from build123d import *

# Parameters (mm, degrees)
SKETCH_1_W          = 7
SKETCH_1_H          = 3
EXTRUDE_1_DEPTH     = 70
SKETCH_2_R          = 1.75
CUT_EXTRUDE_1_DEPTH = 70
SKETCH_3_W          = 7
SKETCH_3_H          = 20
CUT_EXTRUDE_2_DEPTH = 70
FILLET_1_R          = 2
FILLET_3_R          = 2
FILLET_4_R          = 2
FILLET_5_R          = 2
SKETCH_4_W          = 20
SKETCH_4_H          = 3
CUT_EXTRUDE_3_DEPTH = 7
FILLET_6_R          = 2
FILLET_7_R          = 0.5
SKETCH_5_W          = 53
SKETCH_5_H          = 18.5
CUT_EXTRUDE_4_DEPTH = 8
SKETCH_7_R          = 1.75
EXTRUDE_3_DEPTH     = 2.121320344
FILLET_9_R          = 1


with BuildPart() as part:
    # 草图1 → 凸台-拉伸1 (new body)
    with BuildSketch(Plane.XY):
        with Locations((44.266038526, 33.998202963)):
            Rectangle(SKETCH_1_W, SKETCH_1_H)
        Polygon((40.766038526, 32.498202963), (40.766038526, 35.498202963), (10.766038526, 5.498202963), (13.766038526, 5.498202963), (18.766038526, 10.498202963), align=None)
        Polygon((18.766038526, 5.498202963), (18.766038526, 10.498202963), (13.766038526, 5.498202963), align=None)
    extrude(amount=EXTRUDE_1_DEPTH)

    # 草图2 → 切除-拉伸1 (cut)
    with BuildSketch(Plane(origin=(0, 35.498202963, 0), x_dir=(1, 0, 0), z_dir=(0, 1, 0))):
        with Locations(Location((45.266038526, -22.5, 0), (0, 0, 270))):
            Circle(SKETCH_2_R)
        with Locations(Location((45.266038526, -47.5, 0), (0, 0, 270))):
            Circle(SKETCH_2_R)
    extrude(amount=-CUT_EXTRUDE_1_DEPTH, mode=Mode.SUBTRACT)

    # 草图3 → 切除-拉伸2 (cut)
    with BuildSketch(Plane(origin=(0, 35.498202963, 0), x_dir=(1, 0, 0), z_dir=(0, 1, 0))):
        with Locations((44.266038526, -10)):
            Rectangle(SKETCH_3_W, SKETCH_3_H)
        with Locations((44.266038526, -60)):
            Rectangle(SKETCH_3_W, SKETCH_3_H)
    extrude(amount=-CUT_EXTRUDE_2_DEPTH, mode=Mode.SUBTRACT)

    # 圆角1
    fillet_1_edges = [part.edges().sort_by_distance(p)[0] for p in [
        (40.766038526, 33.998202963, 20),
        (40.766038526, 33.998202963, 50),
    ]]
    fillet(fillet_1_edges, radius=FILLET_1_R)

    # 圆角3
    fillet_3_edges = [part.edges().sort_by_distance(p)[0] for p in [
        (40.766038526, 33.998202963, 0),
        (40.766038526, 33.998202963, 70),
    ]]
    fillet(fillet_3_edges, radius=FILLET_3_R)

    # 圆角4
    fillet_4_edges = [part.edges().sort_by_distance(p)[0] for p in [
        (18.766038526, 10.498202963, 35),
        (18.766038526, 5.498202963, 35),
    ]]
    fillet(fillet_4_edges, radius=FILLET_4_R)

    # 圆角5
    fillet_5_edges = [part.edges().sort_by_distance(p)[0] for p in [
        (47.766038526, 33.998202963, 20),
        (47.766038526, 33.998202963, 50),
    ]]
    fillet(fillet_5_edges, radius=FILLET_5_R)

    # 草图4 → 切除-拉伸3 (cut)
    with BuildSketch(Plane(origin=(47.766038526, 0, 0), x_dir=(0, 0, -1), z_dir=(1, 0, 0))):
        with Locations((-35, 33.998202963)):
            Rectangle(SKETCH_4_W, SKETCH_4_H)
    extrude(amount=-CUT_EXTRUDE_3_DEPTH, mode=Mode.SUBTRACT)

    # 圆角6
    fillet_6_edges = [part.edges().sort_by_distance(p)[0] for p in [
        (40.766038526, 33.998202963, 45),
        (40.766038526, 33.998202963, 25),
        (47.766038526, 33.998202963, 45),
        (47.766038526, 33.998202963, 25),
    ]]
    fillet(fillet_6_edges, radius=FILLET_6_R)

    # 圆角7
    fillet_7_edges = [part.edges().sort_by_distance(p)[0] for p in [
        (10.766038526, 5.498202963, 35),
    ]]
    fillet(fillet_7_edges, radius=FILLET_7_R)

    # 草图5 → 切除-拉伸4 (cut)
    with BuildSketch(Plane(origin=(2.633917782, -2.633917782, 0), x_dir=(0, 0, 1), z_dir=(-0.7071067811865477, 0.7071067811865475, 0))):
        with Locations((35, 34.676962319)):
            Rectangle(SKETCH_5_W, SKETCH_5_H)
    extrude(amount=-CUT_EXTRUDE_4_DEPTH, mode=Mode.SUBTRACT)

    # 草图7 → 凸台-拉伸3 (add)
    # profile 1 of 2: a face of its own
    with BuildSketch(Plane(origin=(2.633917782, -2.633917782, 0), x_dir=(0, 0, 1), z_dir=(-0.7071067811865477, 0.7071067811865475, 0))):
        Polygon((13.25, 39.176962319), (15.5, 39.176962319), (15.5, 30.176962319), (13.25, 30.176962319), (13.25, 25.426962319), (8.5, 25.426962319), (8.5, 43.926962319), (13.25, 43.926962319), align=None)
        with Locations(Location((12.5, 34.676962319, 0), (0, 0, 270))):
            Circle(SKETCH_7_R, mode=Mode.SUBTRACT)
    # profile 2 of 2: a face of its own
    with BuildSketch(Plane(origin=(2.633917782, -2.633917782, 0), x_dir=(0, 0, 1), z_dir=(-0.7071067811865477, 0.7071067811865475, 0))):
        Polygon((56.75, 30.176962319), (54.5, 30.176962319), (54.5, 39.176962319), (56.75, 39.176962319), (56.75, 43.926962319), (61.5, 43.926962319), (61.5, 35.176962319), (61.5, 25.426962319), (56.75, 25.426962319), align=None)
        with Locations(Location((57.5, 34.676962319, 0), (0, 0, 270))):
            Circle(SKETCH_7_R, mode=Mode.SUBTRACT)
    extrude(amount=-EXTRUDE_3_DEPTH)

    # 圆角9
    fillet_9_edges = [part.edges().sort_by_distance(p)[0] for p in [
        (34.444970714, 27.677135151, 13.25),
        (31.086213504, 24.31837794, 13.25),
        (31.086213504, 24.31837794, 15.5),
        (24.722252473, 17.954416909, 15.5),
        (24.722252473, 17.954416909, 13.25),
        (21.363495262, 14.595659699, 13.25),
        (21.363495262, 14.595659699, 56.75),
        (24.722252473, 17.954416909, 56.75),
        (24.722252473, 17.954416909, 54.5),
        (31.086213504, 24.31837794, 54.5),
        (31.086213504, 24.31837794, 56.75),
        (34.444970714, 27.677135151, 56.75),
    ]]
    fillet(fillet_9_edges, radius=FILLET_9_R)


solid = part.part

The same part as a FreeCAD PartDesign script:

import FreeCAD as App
import Part
import Sketcher

V = App.Vector


def edges_at(feature, points):
    """Names of the edges that pass closest to the given points."""
    edges = feature.Shape.Edges
    near = lambda p: min(range(len(edges)), key=lambda i: edges[i].distToShape(Part.Vertex(*p))[0])
    return sorted({f"Edge{near(p) + 1}" for p in points})

doc = App.newDocument("Part")
params = doc.addObject("Spreadsheet::Sheet", "Params")
for row, (alias, value) in enumerate([
    ("sketch1_width", "7 mm"),
    ("sketch1_width2", "8 mm"),
    ("sketch1_height", "3 mm"),
    ("sketch1_height2", "5 mm"),
    ("pad1_length", "70 mm"),
    ("sketch2_diameter", "3.5 mm"),
    ("pocket1_length", "70 mm"),
    ("sketch3_width", "7 mm"),
    ("sketch3_height", "20 mm"),
    ("pocket2_length", "70 mm"),
    ("fillet_radius", "2 mm"),
    ("fillet2_radius", "2 mm"),
    ("fillet3_radius", "2 mm"),
    ("fillet4_radius", "2 mm"),
    ("sketch4_width", "3 mm"),
    ("sketch4_height", "20 mm"),
    ("pocket3_length", "7 mm"),
    ("fillet5_radius", "2 mm"),
    ("fillet6_radius", "0.5 mm"),
    ("sketch5_width", "53 mm"),
    ("sketch5_height", "18.5 mm"),
    ("pocket4_length", "8 mm"),
    ("sketch6_diameter", "3.5 mm"),
    ("sketch6_height", "9 mm"),
    ("sketch6_height2", "18.5 mm"),
    ("pad2_length", "2.12132 mm"),
    ("fillet7_radius", "1 mm"),
], start=1):
    params.set(f"A{row}", alias)
    params.set(f"B{row}", "=" + value)
    params.setAlias(f"B{row}", alias)

body = doc.addObject("PartDesign::Body", "Body")

# Sketch on XY plane
sketch1 = body.newObject("Sketcher::SketchObject", "Sketch")
sketch1.AttachmentSupport = (doc.getObject("XY_Plane"), [""])
sketch1.MapMode = "FlatFace"
sketch1.addGeometry([
    Part.LineSegment(V(40.8, 32.5, 0), V(47.8, 32.5, 0)),  # 0
    Part.LineSegment(V(47.8, 32.5, 0), V(47.8, 35.5, 0)),  # 1
    Part.LineSegment(V(47.8, 35.5, 0), V(40.8, 35.5, 0)),  # 2
    Part.LineSegment(V(40.8, 35.5, 0), V(10.8, 5.5, 0)),  # 3
    Part.LineSegment(V(10.8, 5.5, 0), V(18.8, 5.5, 0)),  # 4
    Part.LineSegment(V(18.8, 5.5, 0), V(18.8, 10.5, 0)),  # 5
    Part.LineSegment(V(18.8, 10.5, 0), V(40.8, 32.5, 0)),  # 6
], False)
sketch1.addConstraint([
    Sketcher.Constraint("Coincident", 0, 2, 1, 1),
    Sketcher.Constraint("Coincident", 1, 2, 2, 1),
    Sketcher.Constraint("Coincident", 2, 2, 3, 1),
    Sketcher.Constraint("Coincident", 3, 2, 4, 1),
    Sketcher.Constraint("Coincident", 4, 2, 5, 1),
    Sketcher.Constraint("Coincident", 5, 2, 6, 1),
    Sketcher.Constraint("Coincident", 6, 2, 0, 1),
    Sketcher.Constraint("Horizontal", 0),
    Sketcher.Constraint("Vertical", 1),
    Sketcher.Constraint("Horizontal", 2),
    Sketcher.Constraint("Horizontal", 4),
    Sketcher.Constraint("Vertical", 5),
    Sketcher.Constraint("Parallel", 3, 6),
    Sketcher.Constraint("Vertical", 2, 2, 6, 2),
    Sketcher.Constraint("DistanceX", 0, 1, 0, 2, 7.0),
    Sketcher.Constraint("DistanceX", 4, 1, 4, 2, 8.0),
    Sketcher.Constraint("DistanceY", 1, 1, 1, 2, 3.0),
    Sketcher.Constraint("DistanceY", 5, 1, 5, 2, 5.0),
    Sketcher.Constraint("DistanceX", 3, 2, 2, 2, 30.0),
    Sketcher.Constraint("DistanceX", -1, 1, 0, 2, 47.766039),
    Sketcher.Constraint("DistanceY", -1, 1, 0, 2, 32.498203),
])
sketch1.setExpression("Constraints[14]", "Params.sketch1_width")
sketch1.setExpression("Constraints[15]", "Params.sketch1_width2")
sketch1.setExpression("Constraints[16]", "Params.sketch1_height")
sketch1.setExpression("Constraints[17]", "Params.sketch1_height2")
pad1 = body.newObject("PartDesign::Pad", "Pad")
pad1.Profile = sketch1
pad1.setExpression("Length", "Params.pad1_length")

# Sketch on XZ plane
sketch2 = body.newObject("Sketcher::SketchObject", "Sketch001")
sketch2.AttachmentSupport = (doc.getObject("XZ_Plane"), [""])
sketch2.MapMode = "FlatFace"
sketch2.AttachmentOffset = App.Placement(V(0, 0, -35.498203), App.Rotation())
sketch2.addGeometry([
    Part.Circle(V(45.3, 22.5, 0), V(0, 0, 1), 1.8),
    Part.Circle(V(45.3, 47.5, 0), V(0, 0, 1), 1.8),
], False)
sketch2.addConstraint([
    Sketcher.Constraint("Equal", 0, 1),
    Sketcher.Constraint("Vertical", 0, 3, 1, 3),
    Sketcher.Constraint("Diameter", 0, 3.5),
    Sketcher.Constraint("DistanceY", 0, 3, 1, 3, 25.0),
    Sketcher.Constraint("DistanceY", -1, 1, 0, 3, 22.5),
    Sketcher.Constraint("DistanceX", -1, 1, 0, 3, 45.266039),
])
sketch2.setExpression("Constraints[2]", "Params.sketch2_diameter")
pocket1 = body.newObject("PartDesign::Pocket", "Pocket")
pocket1.Profile = sketch2
pocket1.setExpression("Length", "Params.pocket1_length")
pocket1.Reversed = True

# Sketch on XZ plane
sketch3 = body.newObject("Sketcher::SketchObject", "Sketch002")
sketch3.AttachmentSupport = (doc.getObject("XZ_Plane"), [""])
sketch3.MapMode = "FlatFace"
sketch3.AttachmentOffset = App.Placement(V(0, 0, -35.498203), App.Rotation())
sketch3.addGeometry([
    Part.LineSegment(V(41, 0, 0), V(41, 20, 0)),  # 0
    Part.LineSegment(V(41, 20, 0), V(48, 20, 0)),  # 1
    Part.LineSegment(V(48, 20, 0), V(48, 0, 0)),  # 2
    Part.LineSegment(V(48, 0, 0), V(41, 0, 0)),  # 3
    Part.LineSegment(V(41, 50, 0), V(41, 70, 0)),  # 4
    Part.LineSegment(V(41, 70, 0), V(48, 70, 0)),  # 5
    Part.LineSegment(V(48, 70, 0), V(48, 50, 0)),  # 6
    Part.LineSegment(V(48, 50, 0), V(41, 50, 0)),  # 7
], False)
sketch3.addConstraint([
    Sketcher.Constraint("Coincident", 0, 2, 1, 1),
    Sketcher.Constraint("Coincident", 1, 2, 2, 1),
    Sketcher.Constraint("Coincident", 2, 2, 3, 1),
    Sketcher.Constraint("Coincident", 3, 2, 0, 1),
    Sketcher.Constraint("Coincident", 4, 2, 5, 1),
    Sketcher.Constraint("Coincident", 5, 2, 6, 1),
    Sketcher.Constraint("Coincident", 6, 2, 7, 1),
    Sketcher.Constraint("Coincident", 7, 2, 4, 1),
    Sketcher.Constraint("Vertical", 0),
    Sketcher.Constraint("Horizontal", 1),
    Sketcher.Constraint("Vertical", 2),
    Sketcher.Constraint("Horizontal", 3),
    Sketcher.Constraint("Vertical", 4),
    Sketcher.Constraint("Horizontal", 5),
    Sketcher.Constraint("Vertical", 6),
    Sketcher.Constraint("Horizontal", 7),
    Sketcher.Constraint("PointOnObject", 2, 2, -1),
    Sketcher.Constraint("Vertical", 3, 2, 4, 2),
    Sketcher.Constraint("Vertical", 2, 2, 5, 2),
    Sketcher.Constraint("Equal", 2, 4),
    Sketcher.Constraint("DistanceX", 1, 1, 1, 2, 7.0),
    Sketcher.Constraint("DistanceY", 0, 1, 0, 2, 20.0),
    Sketcher.Constraint("DistanceY", -1, 1, 4, 2, 70.0),
    Sketcher.Constraint("DistanceX", -1, 1, 0, 2, 40.766039),
])
sketch3.setExpression("Constraints[20]", "Params.sketch3_width")
sketch3.setExpression("Constraints[21]", "Params.sketch3_height")
pocket2 = body.newObject("PartDesign::Pocket", "Pocket001")
pocket2.Profile = sketch3
pocket2.setExpression("Length", "Params.pocket2_length")
pocket2.Reversed = True
doc.recompute()

fillet = body.newObject("PartDesign::Fillet", "Fillet")
fillet.Base = (pocket2, edges_at(pocket2, [(40.766, 33.998, 20), (40.766, 33.998, 50)]))
fillet.setExpression("Radius", "Params.fillet_radius")
doc.recompute()

fillet2 = body.newObject("PartDesign::Fillet", "Fillet001")
fillet2.Base = (fillet, edges_at(fillet, [(40.766, 33.998, 0), (40.766, 33.998, 70)]))
fillet2.setExpression("Radius", "Params.fillet2_radius")
doc.recompute()

fillet3 = body.newObject("PartDesign::Fillet", "Fillet002")
fillet3.Base = (fillet2, edges_at(fillet2, [(18.766, 10.498, 35), (18.766, 5.498, 35)]))
fillet3.setExpression("Radius", "Params.fillet3_radius")
doc.recompute()

fillet4 = body.newObject("PartDesign::Fillet", "Fillet003")
fillet4.Base = (fillet3, edges_at(fillet3, [(47.766, 33.998, 20), (47.766, 33.998, 50)]))
fillet4.setExpression("Radius", "Params.fillet4_radius")

# Sketch on YZ plane
sketch4 = body.newObject("Sketcher::SketchObject", "Sketch003")
sketch4.AttachmentSupport = (doc.getObject("YZ_Plane"), [""])
sketch4.MapMode = "FlatFace"
sketch4.AttachmentOffset = App.Placement(V(0, 0, 47.766039), App.Rotation())
sketch4.addGeometry([
    Part.LineSegment(V(35.5, 45, 0), V(32.5, 45, 0)),
    Part.LineSegment(V(32.5, 45, 0), V(32.5, 25, 0)),
    Part.LineSegment(V(32.5, 25, 0), V(35.5, 25, 0)),
    Part.LineSegment(V(35.5, 25, 0), V(35.5, 45, 0)),
], False)
sketch4.addConstraint([
    Sketcher.Constraint("Coincident", 0, 2, 1, 1),
    Sketcher.Constraint("Coincident", 1, 2, 2, 1),
    Sketcher.Constraint("Coincident", 2, 2, 3, 1),
    Sketcher.Constraint("Coincident", 3, 2, 0, 1),
    Sketcher.Constraint("Horizontal", 0),
    Sketcher.Constraint("Vertical", 1),
    Sketcher.Constraint("Horizontal", 2),
    Sketcher.Constraint("Vertical", 3),
    Sketcher.Constraint("DistanceX", 0, 2, 0, 1, 3.0),
    Sketcher.Constraint("DistanceY", 1, 2, 1, 1, 20.0),
    Sketcher.Constraint("DistanceY", -1, 1, 0, 2, 45.0),
    Sketcher.Constraint("DistanceX", -1, 1, 0, 2, 32.498203),
])
sketch4.setExpression("Constraints[8]", "Params.sketch4_width")
sketch4.setExpression("Constraints[9]", "Params.sketch4_height")
pocket3 = body.newObject("PartDesign::Pocket", "Pocket002")
pocket3.Profile = sketch4
pocket3.setExpression("Length", "Params.pocket3_length")
doc.recompute()

fillet5 = body.newObject("PartDesign::Fillet", "Fillet004")
fillet5.Base = (pocket3, edges_at(pocket3, [
    (40.766, 33.998, 45),
    (40.766, 33.998, 25),
    (47.766, 33.998, 45),
    (47.766, 33.998, 25),
]))
fillet5.setExpression("Radius", "Params.fillet5_radius")
doc.recompute()

fillet6 = body.newObject("PartDesign::Fillet", "Fillet005")
fillet6.Base = (fillet5, edges_at(fillet5, [(10.766, 5.498, 35)]))
fillet6.setExpression("Radius", "Params.fillet6_radius")

# Sketch on an angled plane
sketch5 = body.newObject("Sketcher::SketchObject", "Sketch004")
sketch5.Placement = App.Placement(V(2.633918, -2.633918, 0), App.Rotation(V(0, 0, 1), V(0.707106781, 0.707106781, 0), V(-0.707106781, 0.707106781, 0), "ZXY"))
sketch5.addGeometry([
    Part.LineSegment(V(8, 44, 0), V(8, 25, 0)),
    Part.LineSegment(V(8, 25, 0), V(62, 25, 0)),
    Part.LineSegment(V(62, 25, 0), V(62, 44, 0)),
    Part.LineSegment(V(62, 44, 0), V(8, 44, 0)),
], False)
sketch5.addConstraint([
    Sketcher.Constraint("Coincident", 0, 2, 1, 1),
    Sketcher.Constraint("Coincident", 1, 2, 2, 1),
    Sketcher.Constraint("Coincident", 2, 2, 3, 1),
    Sketcher.Constraint("Coincident", 3, 2, 0, 1),
    Sketcher.Constraint("Vertical", 0),
    Sketcher.Constraint("Horizontal", 1),
    Sketcher.Constraint("Vertical", 2),
    Sketcher.Constraint("Horizontal", 3),
    Sketcher.Constraint("DistanceX", 1, 1, 1, 2, 53.0),
    Sketcher.Constraint("DistanceY", 0, 2, 0, 1, 18.5),
    Sketcher.Constraint("DistanceX", -1, 1, 0, 2, 8.5),
    Sketcher.Constraint("DistanceY", -1, 1, 0, 2, 25.426962),
])
sketch5.setExpression("Constraints[8]", "Params.sketch5_width")
sketch5.setExpression("Constraints[9]", "Params.sketch5_height")
pocket4 = body.newObject("PartDesign::Pocket", "Pocket003")
pocket4.Profile = sketch5
pocket4.setExpression("Length", "Params.pocket4_length")

# Sketch on an angled plane
sketch6 = body.newObject("Sketcher::SketchObject", "Sketch005")
sketch6.Placement = App.Placement(V(2.633918, -2.633918, 0), App.Rotation(V(0, 0, 1), V(0.707106781, 0.707106781, 0), V(-0.707106781, 0.707106781, 0), "ZXY"))
sketch6.addGeometry([
    Part.LineSegment(V(15.5, 39.2, 0), V(13.2, 39.2, 0)),  # 0
    Part.LineSegment(V(13.2, 39.2, 0), V(13.2, 43.9, 0)),  # 1
    Part.LineSegment(V(13.2, 43.9, 0), V(8.5, 43.9, 0)),  # 2
    Part.LineSegment(V(8.5, 43.9, 0), V(8.5, 25.4, 0)),  # 3
    Part.LineSegment(V(8.5, 25.4, 0), V(13.2, 25.4, 0)),  # 4
    Part.LineSegment(V(13.2, 25.4, 0), V(13.2, 30.2, 0)),  # 5
    Part.LineSegment(V(13.2, 30.2, 0), V(15.5, 30.2, 0)),  # 6
    Part.LineSegment(V(15.5, 30.2, 0), V(15.5, 39.2, 0)),  # 7
    Part.Circle(V(12.5, 34.7, 0), V(0, 0, 1), 1.8),  # 8
    Part.LineSegment(V(54.5, 30.2, 0), V(56.8, 30.2, 0)),  # 9
    Part.LineSegment(V(56.8, 30.2, 0), V(56.8, 25.4, 0)),  # 10
    Part.LineSegment(V(56.8, 25.4, 0), V(61.5, 25.4, 0)),  # 11
    Part.LineSegment(V(61.5, 25.4, 0), V(61.5, 43.9, 0)),  # 12
    Part.LineSegment(V(61.5, 43.9, 0), V(56.8, 43.9, 0)),  # 13
    Part.LineSegment(V(56.8, 43.9, 0), V(56.8, 39.2, 0)),  # 14
    Part.LineSegment(V(56.8, 39.2, 0), V(54.5, 39.2, 0)),  # 15
    Part.LineSegment(V(54.5, 39.2, 0), V(54.5, 30.2, 0)),  # 16
    Part.Circle(V(57.5, 34.7, 0), V(0, 0, 1), 1.8),  # 17
], False)
sketch6.addConstraint([
    Sketcher.Constraint("Coincident", 0, 2, 1, 1),
    Sketcher.Constraint("Coincident", 1, 2, 2, 1),
    Sketcher.Constraint("Coincident", 2, 2, 3, 1),
    Sketcher.Constraint("Coincident", 3, 2, 4, 1),
    Sketcher.Constraint("Coincident", 4, 2, 5, 1),
    Sketcher.Constraint("Coincident", 5, 2, 6, 1),
    Sketcher.Constraint("Coincident", 6, 2, 7, 1),
    Sketcher.Constraint("Coincident", 7, 2, 0, 1),
    Sketcher.Constraint("Coincident", 9, 2, 10, 1),
    Sketcher.Constraint("Coincident", 10, 2, 11, 1),
    Sketcher.Constraint("Coincident", 11, 2, 12, 1),
    Sketcher.Constraint("Coincident", 12, 2, 13, 1),
    Sketcher.Constraint("Coincident", 13, 2, 14, 1),
    Sketcher.Constraint("Coincident", 14, 2, 15, 1),
    Sketcher.Constraint("Coincident", 15, 2, 16, 1),
    Sketcher.Constraint("Coincident", 16, 2, 9, 1),
    Sketcher.Constraint("Horizontal", 0),
    Sketcher.Constraint("Vertical", 1),
    Sketcher.Constraint("Horizontal", 2),
    Sketcher.Constraint("Vertical", 3),
    Sketcher.Constraint("Horizontal", 4),
    Sketcher.Constraint("Vertical", 5),
    Sketcher.Constraint("Horizontal", 6),
    Sketcher.Constraint("Vertical", 7),
    Sketcher.Constraint("Horizontal", 9),
    Sketcher.Constraint("Vertical", 10),
    Sketcher.Constraint("Horizontal", 11),
    Sketcher.Constraint("Vertical", 12),
    Sketcher.Constraint("Horizontal", 13),
    Sketcher.Constraint("Vertical", 14),
    Sketcher.Constraint("Horizontal", 15),
    Sketcher.Constraint("Vertical", 16),
    Sketcher.Constraint("Equal", 8, 17),
    Sketcher.Constraint("Horizontal", 8, 3, 17, 3),
    Sketcher.Constraint("Horizontal", 6, 2, 9, 2),
    Sketcher.Constraint("Horizontal", 4, 2, 10, 2),
    Sketcher.Constraint("Horizontal", 2, 2, 12, 2),
    Sketcher.Constraint("Horizontal", 7, 2, 14, 2),
    Sketcher.Constraint("Vertical", 1, 2, 4, 2),
    Sketcher.Constraint("Vertical", 10, 2, 13, 2),
    Sketcher.Constraint("Equal", 6, 9),
    Sketcher.Constraint("Equal", 4, 11),
    Sketcher.Constraint("Equal", 13, 1),
    Sketcher.Constraint("Equal", 1, 5),
    Sketcher.Constraint("Diameter", 8, 3.5),
    Sketcher.Constraint("DistanceY", 7, 1, 7, 2, 9.0),
    Sketcher.Constraint("DistanceY", 3, 2, 3, 1, 18.5),
    Sketcher.Constraint("DistanceX", 8, 3, 17, 3, 45.0),
    Sketcher.Constraint("DistanceX", 2, 2, 8, 3, 4.0),
    Sketcher.Constraint("DistanceX", 8, 3, 6, 2, 3.0),
    Sketcher.Constraint("DistanceX", 17, 3, 11, 2, 4.0),
    Sketcher.Constraint("DistanceX", -1, 1, 8, 3, 12.5),
    Sketcher.Constraint("DistanceY", 8, 3, 0, 2, 4.5),
    Sketcher.Constraint("DistanceY", -1, 1, 8, 3, 34.676962),
])
sketch6.setExpression("Constraints[44]", "Params.sketch6_diameter")
sketch6.setExpression("Constraints[45]", "Params.sketch6_height")
sketch6.setExpression("Constraints[46]", "Params.sketch6_height2")
pad2 = body.newObject("PartDesign::Pad", "Pad001")
pad2.Profile = sketch6
pad2.setExpression("Length", "Params.pad2_length")
pad2.Reversed = True
doc.recompute()

fillet7 = body.newObject("PartDesign::Fillet", "Fillet006")
fillet7.Base = (pad2, edges_at(pad2, [
    (34.445, 27.677, 13.25),
    (31.086, 24.318, 13.25),
    (31.086, 24.318, 15.5),
    (24.722, 17.954, 15.5),
    (24.722, 17.954, 13.25),
    (21.363, 14.596, 13.25),
    (21.363, 14.596, 56.75),
    (24.722, 17.954, 56.75),
    (24.722, 17.954, 54.5),
    (31.086, 24.318, 54.5),
    (31.086, 24.318, 56.75),
    (34.445, 27.677, 56.75),
]))
fillet7.setExpression("Radius", "Params.fillet7_radius")

doc.recompute()
